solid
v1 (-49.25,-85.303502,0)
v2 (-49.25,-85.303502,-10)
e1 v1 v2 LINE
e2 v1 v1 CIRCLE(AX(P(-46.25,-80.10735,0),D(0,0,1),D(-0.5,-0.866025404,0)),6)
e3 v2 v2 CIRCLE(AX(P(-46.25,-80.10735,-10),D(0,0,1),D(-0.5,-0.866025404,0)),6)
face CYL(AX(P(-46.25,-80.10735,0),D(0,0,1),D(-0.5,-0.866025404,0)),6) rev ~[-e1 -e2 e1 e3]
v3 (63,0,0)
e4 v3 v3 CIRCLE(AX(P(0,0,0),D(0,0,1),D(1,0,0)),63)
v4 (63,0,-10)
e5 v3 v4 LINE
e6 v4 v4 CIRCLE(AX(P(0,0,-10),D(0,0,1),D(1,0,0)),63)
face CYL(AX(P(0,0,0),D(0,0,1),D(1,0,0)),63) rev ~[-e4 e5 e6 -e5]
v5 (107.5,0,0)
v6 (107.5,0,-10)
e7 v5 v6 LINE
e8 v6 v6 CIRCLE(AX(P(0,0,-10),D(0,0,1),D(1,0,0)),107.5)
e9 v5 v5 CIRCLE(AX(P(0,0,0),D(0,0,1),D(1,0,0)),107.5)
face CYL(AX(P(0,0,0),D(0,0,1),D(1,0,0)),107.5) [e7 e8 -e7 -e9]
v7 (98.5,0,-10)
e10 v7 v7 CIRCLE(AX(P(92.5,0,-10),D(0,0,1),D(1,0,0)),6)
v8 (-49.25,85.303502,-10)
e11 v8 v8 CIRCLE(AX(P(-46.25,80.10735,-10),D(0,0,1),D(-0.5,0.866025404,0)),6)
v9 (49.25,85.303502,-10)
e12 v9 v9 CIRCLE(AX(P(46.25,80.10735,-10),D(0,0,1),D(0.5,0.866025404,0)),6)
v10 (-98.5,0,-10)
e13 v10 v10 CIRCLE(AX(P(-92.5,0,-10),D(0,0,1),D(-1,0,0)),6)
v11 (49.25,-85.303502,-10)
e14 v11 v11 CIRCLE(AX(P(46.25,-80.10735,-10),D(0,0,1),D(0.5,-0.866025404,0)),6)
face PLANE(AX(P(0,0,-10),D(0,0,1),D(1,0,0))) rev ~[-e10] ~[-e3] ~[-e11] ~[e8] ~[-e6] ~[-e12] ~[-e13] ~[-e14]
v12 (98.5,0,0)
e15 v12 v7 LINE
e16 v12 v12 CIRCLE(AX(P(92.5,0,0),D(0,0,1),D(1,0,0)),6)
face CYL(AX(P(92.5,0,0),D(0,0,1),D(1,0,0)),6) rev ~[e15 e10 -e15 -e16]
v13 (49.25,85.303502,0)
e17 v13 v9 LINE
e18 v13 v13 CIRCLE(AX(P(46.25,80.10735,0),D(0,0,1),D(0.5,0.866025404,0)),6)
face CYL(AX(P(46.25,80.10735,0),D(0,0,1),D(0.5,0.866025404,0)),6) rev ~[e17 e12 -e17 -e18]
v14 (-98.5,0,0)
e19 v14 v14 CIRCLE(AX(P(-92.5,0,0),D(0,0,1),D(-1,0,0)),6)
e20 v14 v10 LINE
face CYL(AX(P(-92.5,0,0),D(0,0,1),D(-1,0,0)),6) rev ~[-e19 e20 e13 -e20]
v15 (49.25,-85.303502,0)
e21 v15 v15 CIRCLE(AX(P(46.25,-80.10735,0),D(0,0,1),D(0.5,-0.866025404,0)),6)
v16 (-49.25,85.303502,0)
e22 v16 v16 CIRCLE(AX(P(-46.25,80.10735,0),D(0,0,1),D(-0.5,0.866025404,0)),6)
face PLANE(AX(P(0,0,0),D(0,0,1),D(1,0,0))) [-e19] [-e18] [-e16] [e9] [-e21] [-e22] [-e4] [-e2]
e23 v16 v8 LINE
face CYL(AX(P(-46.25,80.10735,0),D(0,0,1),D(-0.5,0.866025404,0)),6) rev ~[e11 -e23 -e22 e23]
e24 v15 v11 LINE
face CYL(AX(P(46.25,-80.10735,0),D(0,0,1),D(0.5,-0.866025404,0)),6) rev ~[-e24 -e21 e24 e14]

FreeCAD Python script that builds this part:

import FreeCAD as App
import Part
import Sketcher

V = App.Vector

doc = App.newDocument("Part")
body = doc.addObject("PartDesign::Body", "Body")

# Sketch on XY plane
sketch1 = doc.addObject("Sketcher::SketchObject", "Sketch")
body.addObject(sketch1)
sketch1.AttachmentSupport = (doc.XY_Plane, [""])
sketch1.MapMode = "FlatFace"
sketch1.addGeometry(Part.Circle(V(0, 0, 0), V(0, 0, 1), 107.5), False)
sketch1.addGeometry(Part.Circle(V(0, 0, 0), V(0, 0, 1), 63), False)
sketch1.addConstraint(Sketcher.Constraint("Coincident", 0, 3, -1, 1))
sketch1.addConstraint(Sketcher.Constraint("Coincident", 1, 3, -1, 1))
sketch1.addConstraint(Sketcher.Constraint("Diameter", 0, 215.0))
sketch1.addConstraint(Sketcher.Constraint("Diameter", 1, 126.0))
pad1 = doc.addObject("PartDesign::Pad", "Pad")
body.addObject(pad1)
pad1.Profile = sketch1
pad1.Length = 10
pad1.Reversed = True

# Sketch on XY plane
sketch2 = doc.addObject("Sketcher::SketchObject", "Sketch001")
body.addObject(sketch2)
sketch2.AttachmentSupport = (doc.XY_Plane, [""])
sketch2.MapMode = "FlatFace"
sketch2.addGeometry(Part.Circle(V(92.5, 0, 0), V(0, 0, 1), 6), False)
sketch2.addConstraint(Sketcher.Constraint("PointOnObject", 0, 3, -1))
sketch2.addConstraint(Sketcher.Constraint("Diameter", 0, 12.0))
sketch2.addConstraint(Sketcher.Constraint("DistanceX", -1, 1, 0, 3, 92.5))
pocket1 = doc.addObject("PartDesign::Pocket", "Pocket")
body.addObject(pocket1)
pocket1.Profile = sketch2
pocket1.Length = 10
doc.recompute()

polarpattern = doc.addObject("PartDesign::PolarPattern", "PolarPattern")
body.addObject(polarpattern)
polarpattern.Originals = [pocket1]
polarpattern.Axis = (doc.Z_Axis, [""])
polarpattern.Angle = 360
polarpattern.Occurrences = 6
body.Tip = polarpattern

doc.recompute()
